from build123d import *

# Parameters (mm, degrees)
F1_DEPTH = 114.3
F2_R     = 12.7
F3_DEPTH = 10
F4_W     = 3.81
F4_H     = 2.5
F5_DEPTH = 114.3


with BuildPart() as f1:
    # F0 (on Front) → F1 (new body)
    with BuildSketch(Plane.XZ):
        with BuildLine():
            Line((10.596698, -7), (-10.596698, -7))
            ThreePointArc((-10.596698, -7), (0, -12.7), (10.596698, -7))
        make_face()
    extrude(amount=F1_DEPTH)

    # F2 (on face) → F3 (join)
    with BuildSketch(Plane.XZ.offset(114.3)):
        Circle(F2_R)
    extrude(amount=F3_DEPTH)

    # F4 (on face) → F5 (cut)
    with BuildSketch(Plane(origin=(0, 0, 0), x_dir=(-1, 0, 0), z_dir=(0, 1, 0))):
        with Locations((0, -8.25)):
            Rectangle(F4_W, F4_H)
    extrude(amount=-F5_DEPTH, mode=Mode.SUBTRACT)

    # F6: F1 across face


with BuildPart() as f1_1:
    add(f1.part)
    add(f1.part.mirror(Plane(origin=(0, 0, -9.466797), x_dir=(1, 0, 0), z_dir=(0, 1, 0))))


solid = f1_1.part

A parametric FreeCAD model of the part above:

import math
import FreeCAD as App
import Part
import Sketcher

V = App.Vector
Q = App.Units.Quantity

doc = App.newDocument("Part")
body = doc.addObject("PartDesign::Body", "Body")

sketch1 = body.newObject("Sketcher::SketchObject", "Sketch")
sketch1.AttachmentSupport = (doc.getObject("XZ_Plane"), [""])
sketch1.MapMode = "FlatFace"
sketch1.addGeometry([
    Part.LineSegment(V(11, -7, 0), V(-11, -7, 0)),
    Part.ArcOfCircle(Part.Circle(V(0, 0, 0), V(0, 0, 1), 13), math.radians(-147), math.radians(-33)),
], False)
sketch1.addConstraint([
    Sketcher.Constraint("Coincident", 0, 1, 1, 2),
    Sketcher.Constraint("Coincident", 1, 1, 0, 2),
    Sketcher.Constraint("Horizontal", 0),
    Sketcher.Constraint("Coincident", 1, 3, -1, 1),
    Sketcher.Constraint("Radius", 1, Q("0.5 in")),
    Sketcher.Constraint("DistanceY", 0, 1, -1, 1, Q("7 mm")),
])
pad1 = body.newObject("PartDesign::Pad", "Pad")
pad1.Profile = sketch1
pad1.Length = Q("4.5 in")

sketch2 = body.newObject("Sketcher::SketchObject", "Sketch001")
sketch2.AttachmentSupport = (doc.getObject("XZ_Plane"), [""])
sketch2.MapMode = "FlatFace"
sketch2.AttachmentOffset = App.Placement(V(0, 0, 4.5 * 25.4), App.Rotation())
sketch2.addGeometry(Part.Circle(V(0, 0, 0), V(0, 0, 1), 13), False)
sketch2.addConstraint([
    Sketcher.Constraint("Coincident", 0, 3, -1, 1),
    Sketcher.Constraint("Diameter", 0, Q("1 in")),
])
pad2 = body.newObject("PartDesign::Pad", "Pad001")
pad2.Profile = sketch2
pad2.Length = 10

sketch3 = body.newObject("Sketcher::SketchObject", "Sketch002")
sketch3.AttachmentSupport = (doc.getObject("XZ_Plane"), [""])
sketch3.MapMode = "FlatFace"
sketch3.addGeometry([
    Part.LineSegment(V(1.9, -7, 0), V(1.9, -9.5, 0)),
    Part.LineSegment(V(1.9, -9.5, 0), V(-1.9, -9.5, 0)),
    Part.LineSegment(V(-1.9, -9.5, 0), V(-1.9, -7, 0)),
    Part.LineSegment(V(-1.9, -7, 0), V(1.9, -7, 0)),
], False)
sketch3.addConstraint([
    Sketcher.Constraint("Coincident", 0, 2, 1, 1),
    Sketcher.Constraint("Coincident", 1, 2, 2, 1),
    Sketcher.Constraint("Coincident", 2, 2, 3, 1),
    Sketcher.Constraint("Coincident", 3, 2, 0, 1),
    Sketcher.Constraint("Vertical", 0),
    Sketcher.Constraint("Horizontal", 1),
    Sketcher.Constraint("Vertical", 2),
    Sketcher.Constraint("Horizontal", 3),
    Sketcher.Constraint("DistanceX", 1, 2, 1, 1, Q("0.15 in")),
    Sketcher.Constraint("DistanceX", -1, 1, 0, 2, Q("0.075 in")),
    Sketcher.Constraint("DistanceY", 0, 2, 0, 1, Q("2.5 mm")),
    Sketcher.Constraint("DistanceY", 0, 2, -1, 1, Q("9.5 mm")),
])
pocket1 = body.newObject("PartDesign::Pocket", "Pocket")
pocket1.Profile = sketch3
pocket1.Length = Q("4.5 in")
pocket1.Reversed = True
body2 = doc.addObject("PartDesign::Body", "Body001")
doc.recompute()

body2.BaseFeature = body
doc.recompute()

mirroring = doc.addObject("Part::Mirroring", "Mirroring")
mirroring.Source = body
mirroring.Base = V(0, 0, -9.466797)
mirroring.Normal = V(0, 1, 0)
body3 = doc.addObject("PartDesign::Body", "Body002")
body3.BaseFeature = mirroring
boolean = body2.newObject("PartDesign::Boolean", "Boolean")
boolean.Type = "Fuse"
boolean.addObjects([body3])
doc.recompute()
mirroring.Visibility = False

doc.recompute()
